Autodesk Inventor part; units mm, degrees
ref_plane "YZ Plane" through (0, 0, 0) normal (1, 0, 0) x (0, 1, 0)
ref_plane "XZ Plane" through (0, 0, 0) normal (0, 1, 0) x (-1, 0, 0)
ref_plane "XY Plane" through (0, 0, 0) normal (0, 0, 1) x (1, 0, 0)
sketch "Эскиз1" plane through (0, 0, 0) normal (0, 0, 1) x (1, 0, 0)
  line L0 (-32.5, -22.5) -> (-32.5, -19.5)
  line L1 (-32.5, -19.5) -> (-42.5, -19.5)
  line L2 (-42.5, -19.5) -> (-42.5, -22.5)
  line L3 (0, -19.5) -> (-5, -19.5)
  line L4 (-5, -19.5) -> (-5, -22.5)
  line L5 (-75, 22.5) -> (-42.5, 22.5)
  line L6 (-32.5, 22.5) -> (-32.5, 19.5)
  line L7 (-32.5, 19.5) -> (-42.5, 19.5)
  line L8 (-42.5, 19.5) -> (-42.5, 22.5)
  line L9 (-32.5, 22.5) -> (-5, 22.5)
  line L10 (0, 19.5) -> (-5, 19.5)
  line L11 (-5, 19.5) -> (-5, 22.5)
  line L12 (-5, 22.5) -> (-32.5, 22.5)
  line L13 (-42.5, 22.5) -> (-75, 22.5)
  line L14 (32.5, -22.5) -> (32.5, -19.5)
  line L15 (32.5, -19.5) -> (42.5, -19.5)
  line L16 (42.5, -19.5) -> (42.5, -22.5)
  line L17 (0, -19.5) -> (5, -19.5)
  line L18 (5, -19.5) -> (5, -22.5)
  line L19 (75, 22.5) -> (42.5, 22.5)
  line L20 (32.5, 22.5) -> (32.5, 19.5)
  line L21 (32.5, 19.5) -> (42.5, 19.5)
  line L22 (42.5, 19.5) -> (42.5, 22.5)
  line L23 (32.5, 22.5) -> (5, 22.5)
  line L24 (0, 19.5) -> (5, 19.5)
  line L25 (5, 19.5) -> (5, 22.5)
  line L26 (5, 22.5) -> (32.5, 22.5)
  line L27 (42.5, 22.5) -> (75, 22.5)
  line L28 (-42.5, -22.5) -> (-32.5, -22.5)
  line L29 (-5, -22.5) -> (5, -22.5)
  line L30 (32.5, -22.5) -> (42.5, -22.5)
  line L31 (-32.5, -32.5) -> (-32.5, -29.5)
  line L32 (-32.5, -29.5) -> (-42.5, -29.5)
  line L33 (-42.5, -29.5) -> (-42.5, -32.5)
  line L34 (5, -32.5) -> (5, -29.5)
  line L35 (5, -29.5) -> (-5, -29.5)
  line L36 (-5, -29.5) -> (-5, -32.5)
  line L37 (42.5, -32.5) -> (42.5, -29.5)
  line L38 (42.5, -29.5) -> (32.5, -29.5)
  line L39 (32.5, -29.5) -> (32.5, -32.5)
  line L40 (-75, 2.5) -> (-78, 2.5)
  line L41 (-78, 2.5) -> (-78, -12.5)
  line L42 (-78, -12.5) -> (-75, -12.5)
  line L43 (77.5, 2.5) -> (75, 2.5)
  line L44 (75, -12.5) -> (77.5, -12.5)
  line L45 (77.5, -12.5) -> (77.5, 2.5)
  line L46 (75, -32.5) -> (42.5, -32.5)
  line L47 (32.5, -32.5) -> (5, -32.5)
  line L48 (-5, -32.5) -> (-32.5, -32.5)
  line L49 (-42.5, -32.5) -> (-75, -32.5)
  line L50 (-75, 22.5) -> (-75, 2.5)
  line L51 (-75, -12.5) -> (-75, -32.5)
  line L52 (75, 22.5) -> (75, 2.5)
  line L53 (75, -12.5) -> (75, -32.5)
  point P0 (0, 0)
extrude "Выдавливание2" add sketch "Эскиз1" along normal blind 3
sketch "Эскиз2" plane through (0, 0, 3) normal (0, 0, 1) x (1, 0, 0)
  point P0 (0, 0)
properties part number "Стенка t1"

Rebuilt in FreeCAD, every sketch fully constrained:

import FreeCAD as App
import Part
import Sketcher

V = App.Vector


def add_polygon(sketch, points):
    """Adds a closed chain of lines whose ends are joined by coincident constraints."""
    first, n = sketch.GeometryCount, len(points)
    for a, b in zip(points, points[1:] + points[:1]):
        sketch.addGeometry(Part.LineSegment(App.Vector(*a, 0), App.Vector(*b, 0)), False)
    for i in range(n):
        sketch.addConstraint(Sketcher.Constraint("Coincident", first + i, 2, first + (i + 1) % n, 1))

doc = App.newDocument("Part")
params = doc.addObject("Spreadsheet::Sheet", "Params")
for row, (alias, value) in enumerate([
    ("sketch1_width", "3 mm"),
    ("sketch1_width2", "10 mm"),
    ("sketch1_height", "20 mm"),
    ("sketch1_height2", "15 mm"),
    ("sketch1_width3", "32.5 mm"),
    ("pad1_length", "3 mm"),
], start=1):
    params.set(f"A{row}", alias)
    params.set(f"B{row}", "=" + value)
    params.setAlias(f"B{row}", alias)

body = doc.addObject("PartDesign::Body", "Body")

sketch1 = body.newObject("Sketcher::SketchObject", "Sketch")
sketch1.AttachmentSupport = (doc.getObject("XY_Plane"), [""])
sketch1.MapMode = "FlatFace"
add_polygon(sketch1, [(-42.5, 22.5), (-75, 22.5), (-75, 2.5), (-78, 2.5), (-78, -12.5), (-75, -12.5), (-75, -32.5), (-42.5, -32.5), (-42.5, -29.5), (-32.5, -29.5), (-32.5, -32.5), (-5, -32.5), (-5, -29.5), (5, -29.5), (5, -32.5), (32.5, -32.5), (32.5, -29.5), (42.5, -29.5), (42.5, -32.5), (75, -32.5), (75, -12.5), (77.5, -12.5), (77.5, 2.5), (75, 2.5), (75, 22.5), (42.5, 22.5), (42.5, 19.5), (32.5, 19.5), (32.5, 22.5), (5, 22.5), (5, 19.5), (-5, 19.5), (-5, 22.5), (-32.5, 22.5), (-32.5, 19.5), (-42.5, 19.5)])
add_polygon(sketch1, [(-32.5, -19.5), (-32.5, -22.5), (-42.5, -22.5), (-42.5, -19.5)])
add_polygon(sketch1, [(-5, -19.5), (5, -19.5), (5, -22.5), (-5, -22.5)])
add_polygon(sketch1, [(42.5, -22.5), (32.5, -22.5), (32.5, -19.5), (42.5, -19.5)])
sketch1.addConstraint(Sketcher.Constraint("Horizontal", 0))
sketch1.addConstraint(Sketcher.Constraint("Vertical", 1))
sketch1.addConstraint(Sketcher.Constraint("Horizontal", 2))
sketch1.addConstraint(Sketcher.Constraint("Vertical", 3))
sketch1.addConstraint(Sketcher.Constraint("Horizontal", 4))
sketch1.addConstraint(Sketcher.Constraint("Vertical", 5))
sketch1.addConstraint(Sketcher.Constraint("Horizontal", 6))
sketch1.addConstraint(Sketcher.Constraint("Vertical", 7))
sketch1.addConstraint(Sketcher.Constraint("Horizontal", 8))
sketch1.addConstraint(Sketcher.Constraint("Vertical", 9))
sketch1.addConstraint(Sketcher.Constraint("Horizontal", 10))
sketch1.addConstraint(Sketcher.Constraint("Vertical", 11))
sketch1.addConstraint(Sketcher.Constraint("Horizontal", 12))
sketch1.addConstraint(Sketcher.Constraint("Vertical", 13))
sketch1.addConstraint(Sketcher.Constraint("Horizontal", 14))
sketch1.addConstraint(Sketcher.Constraint("Vertical", 15))
sketch1.addConstraint(Sketcher.Constraint("Horizontal", 16))
sketch1.addConstraint(Sketcher.Constraint("Vertical", 17))
sketch1.addConstraint(Sketcher.Constraint("Horizontal", 18))
sketch1.addConstraint(Sketcher.Constraint("Vertical", 19))
sketch1.addConstraint(Sketcher.Constraint("Horizontal", 20))
sketch1.addConstraint(Sketcher.Constraint("Vertical", 21))
sketch1.addConstraint(Sketcher.Constraint("Horizontal", 22))
sketch1.addConstraint(Sketcher.Constraint("Vertical", 23))
sketch1.addConstraint(Sketcher.Constraint("Horizontal", 24))
sketch1.addConstraint(Sketcher.Constraint("Vertical", 25))
sketch1.addConstraint(Sketcher.Constraint("Horizontal", 26))
sketch1.addConstraint(Sketcher.Constraint("Vertical", 27))
sketch1.addConstraint(Sketcher.Constraint("Horizontal", 28))
sketch1.addConstraint(Sketcher.Constraint("Vertical", 29))
sketch1.addConstraint(Sketcher.Constraint("Horizontal", 30))
sketch1.addConstraint(Sketcher.Constraint("Vertical", 31))
sketch1.addConstraint(Sketcher.Constraint("Horizontal", 32))
sketch1.addConstraint(Sketcher.Constraint("Vertical", 33))
sketch1.addConstraint(Sketcher.Constraint("Horizontal", 34))
sketch1.addConstraint(Sketcher.Constraint("Vertical", 35))
sketch1.addConstraint(Sketcher.Constraint("Vertical", 36))
sketch1.addConstraint(Sketcher.Constraint("Horizontal", 37))
sketch1.addConstraint(Sketcher.Constraint("Vertical", 38))
sketch1.addConstraint(Sketcher.Constraint("Horizontal", 39))
sketch1.addConstraint(Sketcher.Constraint("Horizontal", 40))
sketch1.addConstraint(Sketcher.Constraint("Vertical", 41))
sketch1.addConstraint(Sketcher.Constraint("Horizontal", 42))
sketch1.addConstraint(Sketcher.Constraint("Vertical", 43))
sketch1.addConstraint(Sketcher.Constraint("Horizontal", 44))
sketch1.addConstraint(Sketcher.Constraint("Vertical", 45))
sketch1.addConstraint(Sketcher.Constraint("Horizontal", 46))
sketch1.addConstraint(Sketcher.Constraint("Vertical", 47))
sketch1.addConstraint(Sketcher.Constraint("Symmetric", 27, 2, 36, 2, -1, 1))
sketch1.addConstraint(Sketcher.Constraint("Symmetric", 24, 2, 37, 2, -1, 1))
sketch1.addConstraint(Sketcher.Constraint("Symmetric", 30, 2, 40, 2, -1, 1))
sketch1.addConstraint(Sketcher.Constraint("Symmetric", 28, 2, 42, 2, -1, 1))
sketch1.addConstraint(Sketcher.Constraint("Symmetric", 32, 2, 44, 2, -1, 1))
sketch1.addConstraint(Sketcher.Constraint("Symmetric", 34, 2, 46, 2, -1, 1))
sketch1.addConstraint(Sketcher.Constraint("Symmetric", 10, 2, 13, 2, -2))
sketch1.addConstraint(Sketcher.Constraint("Symmetric", 8, 2, 15, 2, -2))
sketch1.addConstraint(Sketcher.Constraint("Symmetric", 6, 2, 17, 2, -2))
sketch1.addConstraint(Sketcher.Constraint("Symmetric", 4, 2, 19, 2, -2))
sketch1.addConstraint(Sketcher.Constraint("Symmetric", 1, 2, 22, 2, -2))
sketch1.addConstraint(Sketcher.Constraint("Symmetric", 28, 2, 31, 2, -2))
sketch1.addConstraint(Sketcher.Constraint("Symmetric", 26, 2, 33, 2, -2))
sketch1.addConstraint(Sketcher.Constraint("Symmetric", 24, 2, 35, 2, -2))
sketch1.addConstraint(Sketcher.Constraint("Horizontal", 6, 2, 9, 2))
sketch1.addConstraint(Sketcher.Constraint("Horizontal", 8, 2, 11, 2))
sketch1.addConstraint(Sketcher.Constraint("Horizontal", 26, 2, 29, 2))
sketch1.addConstraint(Sketcher.Constraint("Horizontal", 39, 2, 40, 2))
sketch1.addConstraint(Sketcher.Constraint("Vertical", 1, 2, 4, 2))
sketch1.addConstraint(Sketcher.Constraint("Vertical", 17, 2, 24, 2))
sketch1.addConstraint(Sketcher.Constraint("Vertical", 15, 2, 26, 2))
sketch1.addConstraint(Sketcher.Constraint("Vertical", 13, 2, 28, 2))
sketch1.addConstraint(Sketcher.Constraint("Equal", 8, 12))
sketch1.addConstraint(Sketcher.Constraint("Equal", 1, 5))
sketch1.addConstraint(Sketcher.Constraint("Equal", 4, 7))
sketch1.addConstraint(Sketcher.Constraint("Equal", 17, 25))
sketch1.addConstraint(Sketcher.Constraint("DistanceX", 2, 2, 2, 1, 3.0))
sketch1.addConstraint(Sketcher.Constraint("DistanceX", 8, 1, 8, 2, 10.0))
sketch1.addConstraint(Sketcher.Constraint("DistanceY", 1, 2, 1, 1, 20.0))
sketch1.addConstraint(Sketcher.Constraint("DistanceY", 3, 2, 3, 1, 15.0))
sketch1.addConstraint(Sketcher.Constraint("DistanceX", 0, 2, 0, 1, 32.5))
sketch1.addConstraint(Sketcher.Constraint("DistanceX", 10, 1, 10, 2, 27.5))
sketch1.addConstraint(Sketcher.Constraint("DistanceX", 20, 1, 20, 2, 2.5))
sketch1.addConstraint(Sketcher.Constraint("DistanceY", 8, 2, 36, 2, 7.0))
sketch1.setExpression("Constraints[122]", "Params.sketch1_width")
sketch1.setExpression("Constraints[123]", "Params.sketch1_width2")
sketch1.setExpression("Constraints[124]", "Params.sketch1_height")
sketch1.setExpression("Constraints[125]", "Params.sketch1_height2")
sketch1.setExpression("Constraints[126]", "Params.sketch1_width3")
pad1 = body.newObject("PartDesign::Pad", "Pad")
pad1.Profile = sketch1
pad1.setExpression("Length", "Params.pad1_length")

doc.recompute()
